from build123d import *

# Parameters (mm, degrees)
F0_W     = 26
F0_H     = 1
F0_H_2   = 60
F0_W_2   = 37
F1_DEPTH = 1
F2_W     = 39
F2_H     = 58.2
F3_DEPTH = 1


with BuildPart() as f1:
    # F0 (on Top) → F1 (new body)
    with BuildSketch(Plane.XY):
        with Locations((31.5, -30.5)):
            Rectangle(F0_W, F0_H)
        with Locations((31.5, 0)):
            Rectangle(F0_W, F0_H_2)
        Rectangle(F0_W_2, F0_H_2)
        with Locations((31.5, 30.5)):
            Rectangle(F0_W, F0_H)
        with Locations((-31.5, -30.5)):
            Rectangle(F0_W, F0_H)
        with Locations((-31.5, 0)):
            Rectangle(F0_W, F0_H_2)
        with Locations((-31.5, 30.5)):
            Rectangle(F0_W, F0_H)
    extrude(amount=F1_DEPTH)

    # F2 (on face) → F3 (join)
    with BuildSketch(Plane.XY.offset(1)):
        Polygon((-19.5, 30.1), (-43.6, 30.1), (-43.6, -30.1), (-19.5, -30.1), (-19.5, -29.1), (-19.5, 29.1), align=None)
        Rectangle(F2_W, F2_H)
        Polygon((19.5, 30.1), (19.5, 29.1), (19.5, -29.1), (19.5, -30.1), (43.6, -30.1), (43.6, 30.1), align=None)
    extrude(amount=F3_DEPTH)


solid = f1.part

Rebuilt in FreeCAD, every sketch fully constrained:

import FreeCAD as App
import Part
import Sketcher
from FreeCAD import Vector
Q = App.Units.Quantity


def add_polygon(sketch, points):
    """Adds a closed chain of lines whose ends are joined by coincident constraints."""
    first, n = sketch.GeometryCount, len(points)
    for a, b in zip(points, points[1:] + points[:1]):
        sketch.addGeometry(Part.LineSegment(App.Vector(*a, 0), App.Vector(*b, 0)), False)
    for i in range(n):
        sketch.addConstraint(Sketcher.Constraint("Coincident", first + i, 2, first + (i + 1) % n, 1))

doc = App.newDocument("Part")
body = doc.addObject("PartDesign::Body", "Body")

# Sketch on XY plane
sketch1 = body.newObject("Sketcher::SketchObject", "Sketch")
sketch1.AttachmentSupport = (doc.getObject("XY_Plane"), [""])
sketch1.MapMode = "FlatFace"
add_polygon(sketch1, [(18.5, -31), (44.5, -31), (44.5, 31), (18.5, 31), (18.5, 30), (-18.5, 30), (-18.5, 31), (-44.5, 31), (-44.5, -31), (-18.5, -31), (-18.5, -30), (18.5, -30)])  # lines 0-11
sketch1.addConstraint([
    Sketcher.Constraint("Horizontal", 0),
    Sketcher.Constraint("Vertical", 1),
    Sketcher.Constraint("Horizontal", 2),
    Sketcher.Constraint("Vertical", 3),
    Sketcher.Constraint("Horizontal", 4),
    Sketcher.Constraint("Vertical", 5),
    Sketcher.Constraint("Horizontal", 6),
    Sketcher.Constraint("Vertical", 7),
    Sketcher.Constraint("Horizontal", 8),
    Sketcher.Constraint("Vertical", 9),
    Sketcher.Constraint("Horizontal", 10),
    Sketcher.Constraint("Vertical", 11),
    Sketcher.Constraint("Symmetric", 0, 2, 6, 2, -1, 1),
    Sketcher.Constraint("Symmetric", 2, 2, 8, 2, -1, 1),
    Sketcher.Constraint("Symmetric", 4, 2, 10, 2, -1, 1),
    Sketcher.Constraint("Symmetric", 2, 2, 5, 2, -2),
    Sketcher.Constraint("DistanceX", 0, 1, 0, 2, Q("26 mm")),
    Sketcher.Constraint("DistanceX", 4, 2, 4, 1, Q("37 mm")),
    Sketcher.Constraint("DistanceY", 1, 1, 1, 2, Q("62 mm")),
    Sketcher.Constraint("DistanceY", 3, 2, 3, 1, Q("1 mm")),
])
pad1 = body.newObject("PartDesign::Pad", "Pad")
pad1.Profile = sketch1
pad1.Length = 1

# Sketch on XY plane
sketch2 = body.newObject("Sketcher::SketchObject", "Sketch001")
sketch2.AttachmentSupport = (doc.getObject("XY_Plane"), [""])
sketch2.MapMode = "FlatFace"
sketch2.AttachmentOffset = App.Placement(Vector(0, 0, 1), App.Rotation())
add_polygon(sketch2, [(-19.5, 30.1), (-43.6, 30.1), (-43.6, -30.1), (-19.5, -30.1), (-19.5, -29.1), (19.5, -29.1), (19.5, -30.1), (43.6, -30.1), (43.6, 30.1), (19.5, 30.1), (19.5, 29.1), (-19.5, 29.1)])  # lines 0-11
sketch2.addConstraint([
    Sketcher.Constraint("Horizontal", 0),
    Sketcher.Constraint("Vertical", 1),
    Sketcher.Constraint("Horizontal", 2),
    Sketcher.Constraint("Vertical", 3),
    Sketcher.Constraint("Horizontal", 4),
    Sketcher.Constraint("Vertical", 5),
    Sketcher.Constraint("Horizontal", 6),
    Sketcher.Constraint("Vertical", 7),
    Sketcher.Constraint("Horizontal", 8),
    Sketcher.Constraint("Vertical", 9),
    Sketcher.Constraint("Horizontal", 10),
    Sketcher.Constraint("Vertical", 11),
    Sketcher.Constraint("Symmetric", 0, 2, 6, 2, -1, 1),
    Sketcher.Constraint("Symmetric", 2, 2, 8, 2, -1, 1),
    Sketcher.Constraint("Symmetric", 4, 2, 10, 2, -1, 1),
    Sketcher.Constraint("Symmetric", 2, 2, 5, 2, -2),
    Sketcher.Constraint("DistanceX", 4, 1, 4, 2, Q("39 mm")),
    Sketcher.Constraint("DistanceY", 3, 1, 3, 2, Q("1 mm")),
    Sketcher.Constraint("DistanceX", 0, 2, 0, 1, Q("24.1 mm")),
    Sketcher.Constraint("DistanceY", 1, 2, 1, 1, Q("60.2 mm")),
])
pad2 = body.newObject("PartDesign::Pad", "Pad001")
pad2.Profile = sketch2
pad2.Length = 1

doc.recompute()
